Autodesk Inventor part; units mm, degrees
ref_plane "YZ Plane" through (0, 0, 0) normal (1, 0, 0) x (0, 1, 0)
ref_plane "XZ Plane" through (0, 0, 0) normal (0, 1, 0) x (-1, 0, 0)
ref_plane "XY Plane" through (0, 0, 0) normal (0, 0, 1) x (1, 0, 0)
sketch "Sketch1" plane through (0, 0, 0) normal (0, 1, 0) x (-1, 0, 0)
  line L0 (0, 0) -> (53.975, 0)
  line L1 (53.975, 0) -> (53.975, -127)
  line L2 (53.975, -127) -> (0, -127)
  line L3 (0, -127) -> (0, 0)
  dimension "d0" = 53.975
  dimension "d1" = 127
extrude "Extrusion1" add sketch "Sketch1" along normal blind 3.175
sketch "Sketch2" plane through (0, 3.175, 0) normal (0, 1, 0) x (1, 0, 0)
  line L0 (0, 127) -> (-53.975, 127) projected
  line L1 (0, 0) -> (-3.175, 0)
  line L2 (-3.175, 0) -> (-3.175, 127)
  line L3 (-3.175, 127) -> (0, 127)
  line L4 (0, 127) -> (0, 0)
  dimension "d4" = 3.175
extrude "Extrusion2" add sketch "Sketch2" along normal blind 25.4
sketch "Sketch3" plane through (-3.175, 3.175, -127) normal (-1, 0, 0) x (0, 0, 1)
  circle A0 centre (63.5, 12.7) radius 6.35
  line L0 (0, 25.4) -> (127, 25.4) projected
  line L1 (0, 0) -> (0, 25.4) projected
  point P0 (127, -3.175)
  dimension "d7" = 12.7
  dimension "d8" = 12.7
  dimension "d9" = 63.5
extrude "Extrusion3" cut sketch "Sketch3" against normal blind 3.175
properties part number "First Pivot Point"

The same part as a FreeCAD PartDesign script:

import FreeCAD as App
import Part
import Sketcher
from FreeCAD import Vector
Q = App.Units.Quantity

doc = App.newDocument("Part")
params = doc.addObject("Spreadsheet::Sheet", "Params")
for row, (alias, value) in enumerate([
    ("sketch1_height", "5 in"),
    ("sketch1_width", "2.125 in"),
    ("pad1_length", "0.125 in"),
    ("sketch2_width", "0.125 in"),
    ("sketch2_height", "5 in"),
    ("pad2_length", "1 in"),
    ("sketch3_diameter", "0.5 in"),
    ("pocket1_length", "0.125 in"),
], start=1):
    params.set(f"A{row}", alias)
    params.set(f"B{row}", "=" + value)
    params.setAlias(f"B{row}", alias)

body = doc.addObject("PartDesign::Body", "Body")

sketch1 = body.newObject("Sketcher::SketchObject", "Sketch")
sketch1.AttachmentSupport = (doc.getObject("XZ_Plane"), [""])
sketch1.MapMode = "FlatFace"
sketch1.addGeometry(Part.LineSegment(Vector(-54, 0, 0), Vector(0, 0, 0)), False)
sketch1.addGeometry(Part.LineSegment(Vector(0, 0, 0), Vector(0, -127, 0)), False)
sketch1.addGeometry(Part.LineSegment(Vector(0, -127, 0), Vector(-54, -127, 0)), False)
sketch1.addGeometry(Part.LineSegment(Vector(-54, -127, 0), Vector(-54, 0, 0)), False)
sketch1.addConstraint(Sketcher.Constraint("Coincident", 0, 2, 1, 1))
sketch1.addConstraint(Sketcher.Constraint("Coincident", 1, 2, 2, 1))
sketch1.addConstraint(Sketcher.Constraint("Coincident", 2, 2, 3, 1))
sketch1.addConstraint(Sketcher.Constraint("Coincident", 3, 2, 0, 1))
sketch1.addConstraint(Sketcher.Constraint("Horizontal", 0))
sketch1.addConstraint(Sketcher.Constraint("Vertical", 1))
sketch1.addConstraint(Sketcher.Constraint("Horizontal", 2))
sketch1.addConstraint(Sketcher.Constraint("Vertical", 3))
sketch1.addConstraint(Sketcher.Constraint("Coincident", 0, 2, -1, 1))
sketch1.addConstraint(Sketcher.Constraint("DistanceY", 1, 2, 1, 1, Q("5 in")))
sketch1.addConstraint(Sketcher.Constraint("DistanceX", 0, 1, 0, 2, Q("2.125 in")))
sketch1.setExpression("Constraints[9]", "Params.sketch1_height")
sketch1.setExpression("Constraints[10]", "Params.sketch1_width")
pad1 = body.newObject("PartDesign::Pad", "Pad")
pad1.Profile = sketch1
pad1.setExpression("Length", "Params.pad1_length")
pad1.Reversed = True

sketch2 = body.newObject("Sketcher::SketchObject", "Sketch001")
sketch2.AttachmentSupport = (doc.getObject("XZ_Plane"), [""])
sketch2.MapMode = "FlatFace"
sketch2.AttachmentOffset = App.Placement(Vector(0, 0, -0.125 * 25.4), App.Rotation())
sketch2.addGeometry(Part.LineSegment(Vector(0, 0, 0), Vector(0, -127, 0)), False)
sketch2.addGeometry(Part.LineSegment(Vector(0, -127, 0), Vector(-3.2, -127, 0)), False)
sketch2.addGeometry(Part.LineSegment(Vector(-3.2, -127, 0), Vector(-3.2, 0, 0)), False)
sketch2.addGeometry(Part.LineSegment(Vector(-3.2, 0, 0), Vector(0, 0, 0)), False)
sketch2.addConstraint(Sketcher.Constraint("Coincident", 0, 2, 1, 1))
sketch2.addConstraint(Sketcher.Constraint("Coincident", 1, 2, 2, 1))
sketch2.addConstraint(Sketcher.Constraint("Coincident", 2, 2, 3, 1))
sketch2.addConstraint(Sketcher.Constraint("Coincident", 3, 2, 0, 1))
sketch2.addConstraint(Sketcher.Constraint("Vertical", 0))
sketch2.addConstraint(Sketcher.Constraint("Horizontal", 1))
sketch2.addConstraint(Sketcher.Constraint("Vertical", 2))
sketch2.addConstraint(Sketcher.Constraint("Horizontal", 3))
sketch2.addConstraint(Sketcher.Constraint("Coincident", 3, 2, -1, 1))
sketch2.addConstraint(Sketcher.Constraint("DistanceX", 1, 2, 1, 1, Q("0.125 in")))
sketch2.addConstraint(Sketcher.Constraint("DistanceY", 0, 2, 0, 1, Q("5 in")))
sketch2.setExpression("Constraints[9]", "Params.sketch2_width")
sketch2.setExpression("Constraints[10]", "Params.sketch2_height")
pad2 = body.newObject("PartDesign::Pad", "Pad001")
pad2.Profile = sketch2
pad2.setExpression("Length", "Params.pad2_length")
pad2.Reversed = True

sketch3 = body.newObject("Sketcher::SketchObject", "Sketch002")
sketch3.AttachmentSupport = (doc.getObject("YZ_Plane"), [""])
sketch3.MapMode = "FlatFace"
sketch3.AttachmentOffset = App.Placement(Vector(0, 0, -0.125 * 25.4), App.Rotation())
sketch3.addGeometry(Part.Circle(Vector(16, -64, 0), Vector(0, 0, 1), 6), False)
sketch3.addConstraint(Sketcher.Constraint("Diameter", 0, Q("0.5 in")))
sketch3.addConstraint(Sketcher.Constraint("DistanceY", 0, 3, -1, 1, Q("2.5 in")))
sketch3.addConstraint(Sketcher.Constraint("DistanceX", -1, 1, 0, 3, Q("0.625 in")))
sketch3.setExpression("Constraints[0]", "Params.sketch3_diameter")
pocket1 = body.newObject("PartDesign::Pocket", "Pocket")
pocket1.Profile = sketch3
pocket1.setExpression("Length", "Params.pocket1_length")
pocket1.Reversed = True

doc.recompute()
